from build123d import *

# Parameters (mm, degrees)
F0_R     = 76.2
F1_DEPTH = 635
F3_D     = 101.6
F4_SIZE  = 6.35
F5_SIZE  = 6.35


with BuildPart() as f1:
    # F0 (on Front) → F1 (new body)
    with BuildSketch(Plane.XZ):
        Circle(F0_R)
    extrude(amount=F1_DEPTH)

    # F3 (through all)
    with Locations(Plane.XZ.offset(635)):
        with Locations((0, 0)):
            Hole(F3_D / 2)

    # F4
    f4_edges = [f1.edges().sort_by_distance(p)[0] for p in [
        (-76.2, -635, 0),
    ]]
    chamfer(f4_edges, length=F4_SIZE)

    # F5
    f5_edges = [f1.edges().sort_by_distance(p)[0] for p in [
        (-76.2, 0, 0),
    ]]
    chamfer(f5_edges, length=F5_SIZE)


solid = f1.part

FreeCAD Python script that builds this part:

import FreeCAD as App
import Part
import Sketcher
Q = App.Units.Quantity


def edges_at(feature, points):
    """Names of the edges that pass closest to the given points."""
    edges = feature.Shape.Edges
    near = lambda p: min(range(len(edges)), key=lambda i: edges[i].distToShape(Part.Vertex(*p))[0])
    return sorted({f"Edge{near(p) + 1}" for p in points})

doc = App.newDocument("Part")
body = doc.addObject("PartDesign::Body", "Body")

sketch1 = body.newObject("Sketcher::SketchObject", "Sketch")
sketch1.AttachmentSupport = (doc.getObject("XZ_Plane"), [""])
sketch1.MapMode = "FlatFace"
sketch1.addGeometry(Part.Circle(App.Vector(0, 0, 0), App.Vector(0, 0, 1), 76.2), False)
sketch1.addConstraint([
    Sketcher.Constraint("Coincident", 0, 3, -1, 1),
    Sketcher.Constraint("Diameter", 0, Q("6 in")),
])
pad1 = body.newObject("PartDesign::Pad", "Pad")
pad1.Profile = sketch1
pad1.Length = Q("25 in")

sketch2 = body.newObject("Sketcher::SketchObject", "Sketch001")
sketch2.AttachmentSupport = (doc.getObject("XZ_Plane"), [""])
sketch2.MapMode = "FlatFace"
sketch2.AttachmentOffset = App.Placement(App.Vector(0, 0, 25 * 25.4), App.Rotation())
sketch2.addGeometry(Part.Circle(App.Vector(0, 0, 0), App.Vector(0, 0, 1), 50.8), False)
sketch2.addConstraint([
    Sketcher.Constraint("Coincident", 0, 3, -1, 1),
    Sketcher.Constraint("Diameter", 0, Q("4 in")),
])
doc.recompute()
hole = body.newObject("PartDesign::Hole", "Hole")
hole.Profile = sketch2
hole.ThreadType = "None"
hole.Diameter = Q("4 in")
hole.DepthType = "ThroughAll"
doc.recompute()

chamfer = body.newObject("PartDesign::Chamfer", "Chamfer")
chamfer.Base = (hole, edges_at(hole, [(-76.2, -635, 0)]))
chamfer.Size = Q("0.25 in")
doc.recompute()

chamfer2 = body.newObject("PartDesign::Chamfer", "Chamfer001")
chamfer2.Base = (chamfer, edges_at(chamfer, [(-76.2, 0, 0)]))
chamfer2.Size = Q("0.25 in")

doc.recompute()
